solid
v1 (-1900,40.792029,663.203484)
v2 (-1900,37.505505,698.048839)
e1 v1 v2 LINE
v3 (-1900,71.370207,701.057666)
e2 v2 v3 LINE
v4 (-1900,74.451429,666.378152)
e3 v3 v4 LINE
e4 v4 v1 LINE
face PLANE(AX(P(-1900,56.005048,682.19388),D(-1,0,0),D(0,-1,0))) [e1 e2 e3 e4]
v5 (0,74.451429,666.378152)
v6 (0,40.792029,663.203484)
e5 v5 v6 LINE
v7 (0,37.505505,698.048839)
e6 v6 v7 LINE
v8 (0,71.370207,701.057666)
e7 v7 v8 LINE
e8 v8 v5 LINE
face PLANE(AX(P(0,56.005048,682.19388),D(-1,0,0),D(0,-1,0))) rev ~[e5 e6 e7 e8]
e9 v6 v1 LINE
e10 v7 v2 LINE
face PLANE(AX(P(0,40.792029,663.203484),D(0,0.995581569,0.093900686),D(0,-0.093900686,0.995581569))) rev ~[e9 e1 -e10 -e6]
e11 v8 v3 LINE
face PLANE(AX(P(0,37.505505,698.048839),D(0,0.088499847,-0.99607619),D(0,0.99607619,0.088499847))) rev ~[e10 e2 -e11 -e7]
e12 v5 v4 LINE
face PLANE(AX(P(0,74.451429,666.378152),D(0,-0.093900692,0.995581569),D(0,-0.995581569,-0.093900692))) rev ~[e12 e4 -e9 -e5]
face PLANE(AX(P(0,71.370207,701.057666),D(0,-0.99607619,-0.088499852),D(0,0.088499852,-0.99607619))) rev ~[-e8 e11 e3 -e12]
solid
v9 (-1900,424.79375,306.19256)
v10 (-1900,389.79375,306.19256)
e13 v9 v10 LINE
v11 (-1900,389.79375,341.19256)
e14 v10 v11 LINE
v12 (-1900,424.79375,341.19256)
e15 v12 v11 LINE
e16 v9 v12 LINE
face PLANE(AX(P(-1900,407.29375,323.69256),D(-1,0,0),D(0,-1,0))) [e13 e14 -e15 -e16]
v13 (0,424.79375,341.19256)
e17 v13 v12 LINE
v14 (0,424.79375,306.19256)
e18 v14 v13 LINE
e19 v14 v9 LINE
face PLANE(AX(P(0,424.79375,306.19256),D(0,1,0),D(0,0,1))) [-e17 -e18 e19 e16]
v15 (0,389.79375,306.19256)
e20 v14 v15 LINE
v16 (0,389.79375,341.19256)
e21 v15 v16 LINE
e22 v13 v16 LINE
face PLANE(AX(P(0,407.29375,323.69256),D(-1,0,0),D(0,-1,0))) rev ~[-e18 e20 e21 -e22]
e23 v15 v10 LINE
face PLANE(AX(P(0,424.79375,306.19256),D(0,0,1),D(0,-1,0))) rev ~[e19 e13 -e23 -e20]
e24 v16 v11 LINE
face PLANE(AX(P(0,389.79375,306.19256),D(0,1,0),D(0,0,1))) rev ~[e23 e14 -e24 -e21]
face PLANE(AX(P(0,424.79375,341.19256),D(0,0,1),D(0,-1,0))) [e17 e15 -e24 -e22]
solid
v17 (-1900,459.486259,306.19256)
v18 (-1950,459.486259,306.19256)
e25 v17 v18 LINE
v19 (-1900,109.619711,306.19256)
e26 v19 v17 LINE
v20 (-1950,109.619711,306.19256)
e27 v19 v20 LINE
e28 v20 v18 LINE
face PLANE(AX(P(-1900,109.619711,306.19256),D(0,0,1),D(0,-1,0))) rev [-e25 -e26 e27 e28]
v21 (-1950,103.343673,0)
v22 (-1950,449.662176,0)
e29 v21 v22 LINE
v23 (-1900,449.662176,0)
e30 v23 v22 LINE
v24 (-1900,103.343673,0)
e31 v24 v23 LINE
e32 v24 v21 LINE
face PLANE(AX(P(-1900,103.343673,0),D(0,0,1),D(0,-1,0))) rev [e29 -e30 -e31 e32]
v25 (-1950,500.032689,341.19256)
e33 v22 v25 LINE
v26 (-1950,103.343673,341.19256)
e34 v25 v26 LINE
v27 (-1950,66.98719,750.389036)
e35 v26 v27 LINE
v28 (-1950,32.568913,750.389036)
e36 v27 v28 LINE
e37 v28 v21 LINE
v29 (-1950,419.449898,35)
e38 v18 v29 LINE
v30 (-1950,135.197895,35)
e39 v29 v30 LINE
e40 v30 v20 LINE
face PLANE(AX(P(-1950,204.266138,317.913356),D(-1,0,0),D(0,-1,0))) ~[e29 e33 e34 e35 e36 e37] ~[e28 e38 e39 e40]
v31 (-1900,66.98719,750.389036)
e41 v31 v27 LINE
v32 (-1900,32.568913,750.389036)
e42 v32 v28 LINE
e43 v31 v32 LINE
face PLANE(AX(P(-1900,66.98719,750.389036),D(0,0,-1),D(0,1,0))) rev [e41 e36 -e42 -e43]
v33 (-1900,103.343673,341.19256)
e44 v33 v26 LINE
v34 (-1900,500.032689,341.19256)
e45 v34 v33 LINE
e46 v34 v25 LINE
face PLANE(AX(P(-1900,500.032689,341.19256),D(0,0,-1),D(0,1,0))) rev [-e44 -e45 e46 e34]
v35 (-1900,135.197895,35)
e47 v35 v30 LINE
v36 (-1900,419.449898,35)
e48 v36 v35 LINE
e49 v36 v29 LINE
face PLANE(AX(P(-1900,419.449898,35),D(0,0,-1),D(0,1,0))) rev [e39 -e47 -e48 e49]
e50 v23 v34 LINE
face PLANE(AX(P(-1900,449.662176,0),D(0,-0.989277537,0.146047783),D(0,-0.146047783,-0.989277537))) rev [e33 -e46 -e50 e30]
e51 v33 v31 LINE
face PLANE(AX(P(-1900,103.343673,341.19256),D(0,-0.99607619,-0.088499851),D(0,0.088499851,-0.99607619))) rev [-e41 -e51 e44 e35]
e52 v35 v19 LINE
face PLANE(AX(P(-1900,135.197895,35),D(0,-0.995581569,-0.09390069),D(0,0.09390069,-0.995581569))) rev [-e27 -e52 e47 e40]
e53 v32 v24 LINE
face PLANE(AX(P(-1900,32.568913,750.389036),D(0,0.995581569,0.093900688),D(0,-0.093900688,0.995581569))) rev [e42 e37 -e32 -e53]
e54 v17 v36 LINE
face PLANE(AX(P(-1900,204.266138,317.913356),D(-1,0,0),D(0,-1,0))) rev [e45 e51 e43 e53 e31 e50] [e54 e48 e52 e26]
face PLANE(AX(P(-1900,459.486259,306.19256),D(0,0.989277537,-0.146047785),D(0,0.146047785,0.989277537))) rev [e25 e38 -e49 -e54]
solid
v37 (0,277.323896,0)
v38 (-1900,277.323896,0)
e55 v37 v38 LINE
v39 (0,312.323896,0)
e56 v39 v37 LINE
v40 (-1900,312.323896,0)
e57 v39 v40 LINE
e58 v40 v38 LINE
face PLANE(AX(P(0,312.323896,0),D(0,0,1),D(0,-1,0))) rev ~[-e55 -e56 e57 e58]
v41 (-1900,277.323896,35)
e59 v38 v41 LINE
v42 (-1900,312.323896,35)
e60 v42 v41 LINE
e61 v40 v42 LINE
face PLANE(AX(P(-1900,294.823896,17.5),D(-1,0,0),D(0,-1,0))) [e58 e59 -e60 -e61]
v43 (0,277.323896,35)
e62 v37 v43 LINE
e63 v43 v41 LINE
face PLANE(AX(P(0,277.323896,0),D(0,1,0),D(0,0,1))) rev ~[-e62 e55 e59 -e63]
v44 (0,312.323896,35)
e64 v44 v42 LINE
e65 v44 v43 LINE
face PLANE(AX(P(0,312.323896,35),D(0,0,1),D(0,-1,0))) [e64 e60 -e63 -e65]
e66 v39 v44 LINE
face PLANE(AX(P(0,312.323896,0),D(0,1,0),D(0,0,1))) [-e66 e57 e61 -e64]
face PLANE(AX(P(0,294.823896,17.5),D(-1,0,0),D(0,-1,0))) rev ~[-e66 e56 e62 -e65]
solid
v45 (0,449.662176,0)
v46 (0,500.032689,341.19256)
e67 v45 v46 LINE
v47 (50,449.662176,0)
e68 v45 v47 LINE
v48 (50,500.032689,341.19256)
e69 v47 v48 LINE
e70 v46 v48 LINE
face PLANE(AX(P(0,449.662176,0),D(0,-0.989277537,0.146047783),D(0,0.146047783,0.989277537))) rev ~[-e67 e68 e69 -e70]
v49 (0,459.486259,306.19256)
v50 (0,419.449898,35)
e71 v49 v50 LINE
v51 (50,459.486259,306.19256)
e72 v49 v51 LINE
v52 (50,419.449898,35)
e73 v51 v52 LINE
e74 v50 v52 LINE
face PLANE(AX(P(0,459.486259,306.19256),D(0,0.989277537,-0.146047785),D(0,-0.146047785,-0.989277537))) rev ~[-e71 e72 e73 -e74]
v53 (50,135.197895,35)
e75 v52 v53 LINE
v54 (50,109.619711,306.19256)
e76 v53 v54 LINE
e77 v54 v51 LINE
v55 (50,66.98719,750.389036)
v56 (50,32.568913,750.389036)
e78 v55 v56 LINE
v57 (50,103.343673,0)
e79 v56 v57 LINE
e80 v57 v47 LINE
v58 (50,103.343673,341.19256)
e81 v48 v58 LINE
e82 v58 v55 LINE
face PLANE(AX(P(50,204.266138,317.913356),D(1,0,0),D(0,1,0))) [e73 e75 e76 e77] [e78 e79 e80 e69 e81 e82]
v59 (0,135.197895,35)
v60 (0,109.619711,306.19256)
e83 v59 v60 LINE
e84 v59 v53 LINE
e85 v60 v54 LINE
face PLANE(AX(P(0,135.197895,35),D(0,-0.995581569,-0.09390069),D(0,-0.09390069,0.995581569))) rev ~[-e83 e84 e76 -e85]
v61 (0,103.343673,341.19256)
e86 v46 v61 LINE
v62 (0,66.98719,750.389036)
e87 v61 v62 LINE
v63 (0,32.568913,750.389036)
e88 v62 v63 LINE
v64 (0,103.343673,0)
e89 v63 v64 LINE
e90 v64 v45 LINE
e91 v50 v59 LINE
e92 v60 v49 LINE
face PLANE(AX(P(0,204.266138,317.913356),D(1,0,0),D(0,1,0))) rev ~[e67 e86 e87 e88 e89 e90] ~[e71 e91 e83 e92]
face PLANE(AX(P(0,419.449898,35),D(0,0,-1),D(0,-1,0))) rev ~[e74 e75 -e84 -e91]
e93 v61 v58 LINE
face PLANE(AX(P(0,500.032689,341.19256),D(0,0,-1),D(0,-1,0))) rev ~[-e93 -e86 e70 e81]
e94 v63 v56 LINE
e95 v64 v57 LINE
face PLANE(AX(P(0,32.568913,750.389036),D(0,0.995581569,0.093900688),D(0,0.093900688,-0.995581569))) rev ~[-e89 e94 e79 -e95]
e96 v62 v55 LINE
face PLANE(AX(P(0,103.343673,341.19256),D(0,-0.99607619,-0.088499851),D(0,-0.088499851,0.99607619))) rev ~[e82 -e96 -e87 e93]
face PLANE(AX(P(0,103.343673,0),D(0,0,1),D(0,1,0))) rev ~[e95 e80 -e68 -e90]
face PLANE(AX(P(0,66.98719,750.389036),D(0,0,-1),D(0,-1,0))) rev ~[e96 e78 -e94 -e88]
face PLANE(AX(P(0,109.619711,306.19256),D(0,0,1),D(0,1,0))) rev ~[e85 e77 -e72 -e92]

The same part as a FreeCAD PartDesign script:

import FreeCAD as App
import Part
import Sketcher
from FreeCAD import Vector


def add_polygon(sketch, points):
    """Adds a closed chain of lines whose ends are joined by coincident constraints."""
    first, n = sketch.GeometryCount, len(points)
    for a, b in zip(points, points[1:] + points[:1]):
        sketch.addGeometry(Part.LineSegment(App.Vector(*a, 0), App.Vector(*b, 0)), False)
    for i in range(n):
        sketch.addConstraint(Sketcher.Constraint("Coincident", first + i, 2, first + (i + 1) % n, 1))

doc = App.newDocument("Part")
body = doc.addObject("PartDesign::Body", "Body")

# Sketch on YZ plane
sketch1 = body.newObject("Sketcher::SketchObject", "Sketch")
sketch1.AttachmentSupport = (doc.getObject("YZ_Plane"), [""])
sketch1.MapMode = "FlatFace"
add_polygon(sketch1, [(67, 750), (33, 750), (103, 0), (450, 0), (500, 341), (103, 341)])  # lines 0-5
add_polygon(sketch1, [(459, 306), (419, 35), (135, 35), (110, 306)])  # lines 6-9
sketch1.addConstraint([
    Sketcher.Constraint("Horizontal", 0),
    Sketcher.Constraint("Horizontal", 2),
    Sketcher.Constraint("Horizontal", 4),
    Sketcher.Constraint("Horizontal", 7),
    Sketcher.Constraint("Horizontal", 9),
    Sketcher.Constraint("PointOnObject", 1, 2, -1),
    Sketcher.Constraint("Parallel", 3, 6),
    Sketcher.Constraint("Parallel", 1, 8),
    Sketcher.Constraint("Vertical", 1, 2, 4, 2),
    Sketcher.Constraint("DistanceY", -1, 1, 6, 2, 35.0),
    Sketcher.Constraint("DistanceY", 8, 2, 4, 2, 35.0),
    Sketcher.Constraint("DistanceX", 9, 1, 9, 2, 349.866548),
    Sketcher.Constraint("DistanceX", -1, 1, 6, 2, 419.449898),
    Sketcher.Constraint("DistanceX", 5, 2, 3, 2, 433.045499),
    Sketcher.Constraint("Distance", 5, 410.80841),
    Sketcher.Constraint("Distance", 6, 274.13193),
    Sketcher.Constraint("DistanceX", 0, 2, 0, 1, 34.418277),
    Sketcher.Constraint("DistanceX", 2, 1, 2, 2, 346.318503),
    Sketcher.Constraint("DistanceX", 4, 2, 4, 1, 396.689016),
    Sketcher.Constraint("DistanceX", -1, 1, 3, 2, 500.032689),
])
pad1 = body.newObject("PartDesign::Pad", "Pad")
pad1.Profile = sketch1
pad1.Length = 50
body2 = doc.addObject("PartDesign::Body", "Body001")
body2.AllowCompound = True

# Sketch on YZ plane
sketch2 = body2.newObject("Sketcher::SketchObject", "Sketch001")
sketch2.AttachmentSupport = (doc.getObject("YZ_Plane001"), [""])
sketch2.MapMode = "FlatFace"
add_polygon(sketch2, [(320, 341), (320, 306), (285, 306), (285, 341)])  # lines 0-3
add_polygon(sketch2, [(312, 35), (312, 0), (277, 0), (277, 35)])  # lines 4-7
sketch2.addConstraint([
    Sketcher.Constraint("Vertical", 0),
    Sketcher.Constraint("Horizontal", 1),
    Sketcher.Constraint("Vertical", 2),
    Sketcher.Constraint("Horizontal", 3),
    Sketcher.Constraint("Vertical", 4),
    Sketcher.Constraint("Horizontal", 5),
    Sketcher.Constraint("Vertical", 6),
    Sketcher.Constraint("Horizontal", 7),
    Sketcher.Constraint("PointOnObject", 4, 2, -1),
    Sketcher.Constraint("Equal", 3, 5),
    Sketcher.Constraint("Equal", 7, 0),
    Sketcher.Constraint("Equal", 2, 4),
    Sketcher.Constraint("DistanceX", 1, 2, 1, 1, 35.0),
    Sketcher.Constraint("DistanceY", -1, 1, 0, 2, 306.19256),
    Sketcher.Constraint("DistanceX", 4, 2, 0, 2, 7.229089),
    Sketcher.Constraint("DistanceX", -1, 1, 0, 2, 319.552985),
])
pad2 = body2.newObject("PartDesign::Pad", "Pad001")
pad2.Profile = sketch2
pad2.Length = 950
pad2.Reversed = True
body3 = doc.addObject("PartDesign::Body", "Body002")
doc.recompute()

mirroring = doc.addObject("Part::Mirroring", "Mirroring")
mirroring.Source = body
mirroring.Base = Vector(-950, 302.052985, 323.69256)
mirroring.Normal = Vector(-1, 0, 0)
body3.BaseFeature = mirroring
doc.recompute()
body4 = doc.addObject("PartDesign::Body", "Body003")
body4.AllowCompound = True

# Sketch on YZ plane
sketch3 = body4.newObject("Sketcher::SketchObject", "Sketch002")
sketch3.AttachmentSupport = (doc.getObject("YZ_Plane003"), [""])
sketch3.MapMode = "FlatFace"
add_polygon(sketch3, [(312, 35), (312, 0), (277, 0), (277, 35)])  # lines 0-3
add_polygon(sketch3, [(38, 698), (71, 701), (74, 666), (41, 663)])  # lines 4-7
add_polygon(sketch3, [(425, 341), (425, 306), (390, 306), (390, 341)])  # lines 8-11
sketch3.addConstraint([
    Sketcher.Constraint("Vertical", 0),
    Sketcher.Constraint("Horizontal", 1),
    Sketcher.Constraint("Vertical", 2),
    Sketcher.Constraint("Horizontal", 3),
    Sketcher.Constraint("Vertical", 8),
    Sketcher.Constraint("Horizontal", 9),
    Sketcher.Constraint("Vertical", 10),
    Sketcher.Constraint("Horizontal", 11),
    Sketcher.Constraint("PointOnObject", 0, 2, -1),
    Sketcher.Constraint("Perpendicular", 4, 5),
    Sketcher.Constraint("Perpendicular", 6, 7),
    Sketcher.Constraint("Equal", 3, 9),
    Sketcher.Constraint("Equal", 11, 0),
    Sketcher.Constraint("Equal", 2, 8),
    Sketcher.Constraint("DistanceX", 1, 2, 1, 1, 35.0),
    Sketcher.Constraint("Distance", 7, 35.0),
    Sketcher.Constraint("DistanceX", 6, 2, 5, 2, 33.6594),
    Sketcher.Constraint("DistanceX", 7, 2, 4, 2, 33.864702),
    Sketcher.Constraint("Distance", 6, 33.808782),
    Sketcher.Constraint("DistanceX", -1, 1, 5, 2, 74.451429),
    Sketcher.Constraint("DistanceY", -1, 1, 5, 2, 666.378152),
    Sketcher.Constraint("DistanceX", -1, 1, 8, 2, 424.79375),
    Sketcher.Constraint("DistanceY", -1, 1, 8, 2, 306.19256),
    Sketcher.Constraint("DistanceX", 4, 2, 2, 2, 205.953689),
])
pad3 = body4.newObject("PartDesign::Pad", "Pad002")
pad3.Profile = sketch3
pad3.Length = 1900
pad3.Reversed = True
body2.Visibility = False
mirroring.Visibility = False

doc.recompute()
